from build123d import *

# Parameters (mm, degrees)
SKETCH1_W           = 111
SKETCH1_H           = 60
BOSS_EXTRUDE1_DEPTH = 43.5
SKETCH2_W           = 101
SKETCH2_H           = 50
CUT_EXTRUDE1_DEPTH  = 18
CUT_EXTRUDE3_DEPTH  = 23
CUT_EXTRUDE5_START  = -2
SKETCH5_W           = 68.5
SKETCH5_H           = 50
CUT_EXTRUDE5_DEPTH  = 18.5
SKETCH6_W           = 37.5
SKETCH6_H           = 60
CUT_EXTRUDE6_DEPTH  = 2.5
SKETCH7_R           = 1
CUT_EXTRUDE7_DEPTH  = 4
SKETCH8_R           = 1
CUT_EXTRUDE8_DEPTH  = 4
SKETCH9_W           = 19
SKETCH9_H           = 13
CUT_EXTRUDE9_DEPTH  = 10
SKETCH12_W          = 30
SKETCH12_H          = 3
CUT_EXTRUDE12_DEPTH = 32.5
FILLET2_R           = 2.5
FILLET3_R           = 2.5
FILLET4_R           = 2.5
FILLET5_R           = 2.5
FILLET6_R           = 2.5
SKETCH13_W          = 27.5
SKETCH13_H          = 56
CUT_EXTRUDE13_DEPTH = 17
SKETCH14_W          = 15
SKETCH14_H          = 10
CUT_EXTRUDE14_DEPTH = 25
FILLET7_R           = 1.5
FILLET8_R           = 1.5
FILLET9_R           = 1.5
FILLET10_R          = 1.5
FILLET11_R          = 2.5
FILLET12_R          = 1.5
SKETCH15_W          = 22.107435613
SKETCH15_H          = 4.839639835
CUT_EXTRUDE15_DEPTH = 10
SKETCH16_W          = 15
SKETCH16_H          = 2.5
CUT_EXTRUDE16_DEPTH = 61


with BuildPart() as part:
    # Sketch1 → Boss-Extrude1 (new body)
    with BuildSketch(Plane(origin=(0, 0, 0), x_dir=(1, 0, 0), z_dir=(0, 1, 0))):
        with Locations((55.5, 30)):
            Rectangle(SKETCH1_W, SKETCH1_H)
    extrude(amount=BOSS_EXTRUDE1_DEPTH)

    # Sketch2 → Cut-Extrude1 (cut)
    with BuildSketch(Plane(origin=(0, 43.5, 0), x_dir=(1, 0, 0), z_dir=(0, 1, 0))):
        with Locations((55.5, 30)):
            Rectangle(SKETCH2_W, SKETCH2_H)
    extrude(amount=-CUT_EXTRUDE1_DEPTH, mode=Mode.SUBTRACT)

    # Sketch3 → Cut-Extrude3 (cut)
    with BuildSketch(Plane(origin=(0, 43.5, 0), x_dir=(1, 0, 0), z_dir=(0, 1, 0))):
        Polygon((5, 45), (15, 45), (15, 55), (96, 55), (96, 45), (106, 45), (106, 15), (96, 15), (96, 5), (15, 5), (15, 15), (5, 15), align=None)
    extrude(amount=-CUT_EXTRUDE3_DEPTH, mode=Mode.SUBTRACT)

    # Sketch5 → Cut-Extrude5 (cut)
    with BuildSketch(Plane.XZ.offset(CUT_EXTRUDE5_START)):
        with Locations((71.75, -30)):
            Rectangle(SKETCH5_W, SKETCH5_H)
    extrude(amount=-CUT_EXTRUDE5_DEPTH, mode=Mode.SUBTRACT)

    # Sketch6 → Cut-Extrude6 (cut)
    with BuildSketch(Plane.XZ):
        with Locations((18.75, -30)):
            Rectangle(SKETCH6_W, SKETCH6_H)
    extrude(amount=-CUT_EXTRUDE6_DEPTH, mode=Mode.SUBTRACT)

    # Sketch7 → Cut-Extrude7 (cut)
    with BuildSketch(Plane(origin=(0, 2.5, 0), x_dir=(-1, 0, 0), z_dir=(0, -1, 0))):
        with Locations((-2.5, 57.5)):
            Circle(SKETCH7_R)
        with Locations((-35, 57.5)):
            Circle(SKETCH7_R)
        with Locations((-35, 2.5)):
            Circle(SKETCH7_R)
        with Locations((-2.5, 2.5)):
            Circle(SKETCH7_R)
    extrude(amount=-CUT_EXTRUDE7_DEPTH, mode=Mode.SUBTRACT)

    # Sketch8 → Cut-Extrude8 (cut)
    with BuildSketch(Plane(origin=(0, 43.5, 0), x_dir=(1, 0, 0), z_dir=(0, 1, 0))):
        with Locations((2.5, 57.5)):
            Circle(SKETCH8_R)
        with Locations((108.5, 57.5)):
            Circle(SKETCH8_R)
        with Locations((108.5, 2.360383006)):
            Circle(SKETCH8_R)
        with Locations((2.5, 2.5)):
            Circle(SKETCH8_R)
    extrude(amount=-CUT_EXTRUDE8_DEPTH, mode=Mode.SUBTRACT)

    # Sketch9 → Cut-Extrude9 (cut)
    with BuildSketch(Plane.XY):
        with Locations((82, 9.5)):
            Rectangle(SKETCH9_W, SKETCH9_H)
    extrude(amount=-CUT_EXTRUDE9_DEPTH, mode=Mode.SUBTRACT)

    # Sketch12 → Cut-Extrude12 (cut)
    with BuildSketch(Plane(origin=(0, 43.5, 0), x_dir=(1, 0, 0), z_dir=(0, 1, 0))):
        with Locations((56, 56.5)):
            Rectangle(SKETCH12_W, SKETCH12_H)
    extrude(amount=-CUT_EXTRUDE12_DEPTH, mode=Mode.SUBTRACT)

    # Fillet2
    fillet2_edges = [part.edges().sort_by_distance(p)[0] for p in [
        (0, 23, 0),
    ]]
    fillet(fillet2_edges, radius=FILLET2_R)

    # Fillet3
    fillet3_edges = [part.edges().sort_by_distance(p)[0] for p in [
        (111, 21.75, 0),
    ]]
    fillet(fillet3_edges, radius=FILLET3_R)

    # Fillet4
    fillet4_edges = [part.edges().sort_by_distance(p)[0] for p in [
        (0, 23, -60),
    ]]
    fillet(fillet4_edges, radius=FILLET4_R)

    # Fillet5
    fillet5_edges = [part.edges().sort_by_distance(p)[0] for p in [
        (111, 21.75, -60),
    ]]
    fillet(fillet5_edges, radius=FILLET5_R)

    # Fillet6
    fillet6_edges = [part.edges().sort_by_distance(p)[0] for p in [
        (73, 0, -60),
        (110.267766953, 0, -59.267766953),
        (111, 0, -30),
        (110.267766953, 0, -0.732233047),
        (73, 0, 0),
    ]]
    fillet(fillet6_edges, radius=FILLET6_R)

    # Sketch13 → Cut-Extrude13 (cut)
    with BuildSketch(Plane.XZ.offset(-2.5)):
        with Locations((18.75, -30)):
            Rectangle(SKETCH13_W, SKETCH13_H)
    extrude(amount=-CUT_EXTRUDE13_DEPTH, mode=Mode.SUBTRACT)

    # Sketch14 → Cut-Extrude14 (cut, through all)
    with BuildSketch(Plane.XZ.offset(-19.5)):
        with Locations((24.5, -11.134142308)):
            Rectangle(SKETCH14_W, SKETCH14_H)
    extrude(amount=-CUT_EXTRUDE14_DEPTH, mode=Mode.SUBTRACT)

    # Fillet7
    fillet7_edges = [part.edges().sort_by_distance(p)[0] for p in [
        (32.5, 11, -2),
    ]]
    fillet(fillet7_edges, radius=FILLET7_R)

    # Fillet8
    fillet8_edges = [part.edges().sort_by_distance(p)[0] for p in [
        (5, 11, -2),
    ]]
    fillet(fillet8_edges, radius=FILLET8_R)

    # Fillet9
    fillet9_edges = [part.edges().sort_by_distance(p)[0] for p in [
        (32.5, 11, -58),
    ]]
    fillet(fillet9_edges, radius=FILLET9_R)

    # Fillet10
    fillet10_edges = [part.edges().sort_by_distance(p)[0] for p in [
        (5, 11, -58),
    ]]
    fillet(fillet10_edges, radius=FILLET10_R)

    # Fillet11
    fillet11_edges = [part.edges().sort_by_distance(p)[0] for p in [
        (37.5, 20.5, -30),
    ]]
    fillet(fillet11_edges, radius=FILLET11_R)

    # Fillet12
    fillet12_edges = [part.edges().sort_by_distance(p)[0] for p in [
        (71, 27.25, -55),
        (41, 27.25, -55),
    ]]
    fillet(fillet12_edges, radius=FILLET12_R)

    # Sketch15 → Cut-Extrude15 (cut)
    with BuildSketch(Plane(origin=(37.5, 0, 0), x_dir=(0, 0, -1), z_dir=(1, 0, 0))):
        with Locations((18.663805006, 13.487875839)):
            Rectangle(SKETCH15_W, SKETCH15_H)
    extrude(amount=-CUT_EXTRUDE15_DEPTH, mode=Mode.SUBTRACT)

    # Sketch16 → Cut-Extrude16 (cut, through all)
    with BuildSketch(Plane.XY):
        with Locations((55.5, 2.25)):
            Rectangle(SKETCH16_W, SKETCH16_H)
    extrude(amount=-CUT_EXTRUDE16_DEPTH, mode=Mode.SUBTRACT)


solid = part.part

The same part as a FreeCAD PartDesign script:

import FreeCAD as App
import Part
import Sketcher


def edges_at(feature, points):
    """Names of the edges that pass closest to the given points."""
    edges = feature.Shape.Edges
    near = lambda p: min(range(len(edges)), key=lambda i: edges[i].distToShape(Part.Vertex(*p))[0])
    return sorted({f"Edge{near(p) + 1}" for p in points})

doc = App.newDocument("Part")
body = doc.addObject("PartDesign::Body", "Body")

sketch1 = body.newObject("Sketcher::SketchObject", "Sketch")
sketch1.AttachmentSupport = (doc.getObject("XZ_Plane"), [""])
sketch1.MapMode = "FlatFace"
sketch1.addGeometry([
    Part.LineSegment(App.Vector(0, -60, 0), App.Vector(0, 0, 0)),
    Part.LineSegment(App.Vector(0, 0, 0), App.Vector(111, 0, 0)),
    Part.LineSegment(App.Vector(111, 0, 0), App.Vector(111, -60, 0)),
    Part.LineSegment(App.Vector(111, -60, 0), App.Vector(0, -60, 0)),
], False)
sketch1.addConstraint([
    Sketcher.Constraint("Coincident", 0, 2, 1, 1),
    Sketcher.Constraint("Coincident", 1, 2, 2, 1),
    Sketcher.Constraint("Coincident", 2, 2, 3, 1),
    Sketcher.Constraint("Coincident", 3, 2, 0, 1),
    Sketcher.Constraint("Vertical", 0),
    Sketcher.Constraint("Horizontal", 1),
    Sketcher.Constraint("Vertical", 2),
    Sketcher.Constraint("Horizontal", 3),
    Sketcher.Constraint("Coincident", 0, 2, -1, 1),
    Sketcher.Constraint("DistanceX", 1, 1, 1, 2, 111.0),
    Sketcher.Constraint("DistanceY", 0, 1, 0, 2, 60.0),
])
pad1 = body.newObject("PartDesign::Pad", "Pad")
pad1.Profile = sketch1
pad1.Length = 43.5
pad1.Reversed = True

sketch2 = body.newObject("Sketcher::SketchObject", "Sketch001")
sketch2.AttachmentSupport = (doc.getObject("XZ_Plane"), [""])
sketch2.MapMode = "FlatFace"
sketch2.AttachmentOffset = App.Placement(App.Vector(0, 0, -43.5), App.Rotation())
sketch2.addGeometry([
    Part.LineSegment(App.Vector(5, -55, 0), App.Vector(5, -5, 0)),
    Part.LineSegment(App.Vector(5, -5, 0), App.Vector(106, -5, 0)),
    Part.LineSegment(App.Vector(106, -5, 0), App.Vector(106, -55, 0)),
    Part.LineSegment(App.Vector(106, -55, 0), App.Vector(5, -55, 0)),
], False)
sketch2.addConstraint([
    Sketcher.Constraint("Coincident", 0, 2, 1, 1),
    Sketcher.Constraint("Coincident", 1, 2, 2, 1),
    Sketcher.Constraint("Coincident", 2, 2, 3, 1),
    Sketcher.Constraint("Coincident", 3, 2, 0, 1),
    Sketcher.Constraint("Vertical", 0),
    Sketcher.Constraint("Horizontal", 1),
    Sketcher.Constraint("Vertical", 2),
    Sketcher.Constraint("Horizontal", 3),
    Sketcher.Constraint("DistanceX", 1, 1, 1, 2, 101.0),
    Sketcher.Constraint("DistanceY", 0, 1, 0, 2, 50.0),
    Sketcher.Constraint("DistanceX", -1, 1, 0, 2, 5.0),
    Sketcher.Constraint("DistanceY", 0, 2, -1, 1, 5.0),
])
pocket1 = body.newObject("PartDesign::Pocket", "Pocket")
pocket1.Profile = sketch2
pocket1.Length = 18
pocket1.Reversed = True

sketch3 = body.newObject("Sketcher::SketchObject", "Sketch002")
sketch3.AttachmentSupport = (doc.getObject("XZ_Plane"), [""])
sketch3.MapMode = "FlatFace"
sketch3.AttachmentOffset = App.Placement(App.Vector(0, 0, -43.5), App.Rotation())
sketch3.addGeometry([
    Part.LineSegment(App.Vector(15, -45, 0), App.Vector(5, -45, 0)),
    Part.LineSegment(App.Vector(5, -45, 0), App.Vector(5, -15, 0)),
    Part.LineSegment(App.Vector(5, -15, 0), App.Vector(15, -15, 0)),
    Part.LineSegment(App.Vector(15, -15, 0), App.Vector(15, -5, 0)),
    Part.LineSegment(App.Vector(15, -5, 0), App.Vector(96, -5, 0)),
    Part.LineSegment(App.Vector(96, -5, 0), App.Vector(96, -15, 0)),
    Part.LineSegment(App.Vector(96, -15, 0), App.Vector(106, -15, 0)),
    Part.LineSegment(App.Vector(106, -15, 0), App.Vector(106, -45, 0)),
    Part.LineSegment(App.Vector(106, -45, 0), App.Vector(96, -45, 0)),
    Part.LineSegment(App.Vector(96, -45, 0), App.Vector(96, -55, 0)),
    Part.LineSegment(App.Vector(96, -55, 0), App.Vector(15, -55, 0)),
    Part.LineSegment(App.Vector(15, -55, 0), App.Vector(15, -45, 0)),
], False)
sketch3.addConstraint([
    Sketcher.Constraint("Coincident", 0, 2, 1, 1),
    Sketcher.Constraint("Coincident", 1, 2, 2, 1),
    Sketcher.Constraint("Coincident", 2, 2, 3, 1),
    Sketcher.Constraint("Coincident", 3, 2, 4, 1),
    Sketcher.Constraint("Coincident", 4, 2, 5, 1),
    Sketcher.Constraint("Coincident", 5, 2, 6, 1),
    Sketcher.Constraint("Coincident", 6, 2, 7, 1),
    Sketcher.Constraint("Coincident", 7, 2, 8, 1),
    Sketcher.Constraint("Coincident", 8, 2, 9, 1),
    Sketcher.Constraint("Coincident", 9, 2, 10, 1),
    Sketcher.Constraint("Coincident", 10, 2, 11, 1),
    Sketcher.Constraint("Coincident", 11, 2, 0, 1),
    Sketcher.Constraint("Horizontal", 0),
    Sketcher.Constraint("Vertical", 1),
    Sketcher.Constraint("Horizontal", 2),
    Sketcher.Constraint("Vertical", 3),
    Sketcher.Constraint("Horizontal", 4),
    Sketcher.Constraint("Vertical", 5),
    Sketcher.Constraint("Horizontal", 6),
    Sketcher.Constraint("Vertical", 7),
    Sketcher.Constraint("Horizontal", 8),
    Sketcher.Constraint("Vertical", 9),
    Sketcher.Constraint("Horizontal", 10),
    Sketcher.Constraint("Vertical", 11),
    Sketcher.Constraint("Horizontal", 2, 2, 5, 2),
    Sketcher.Constraint("Horizontal", 0, 2, 7, 2),
    Sketcher.Constraint("Vertical", 5, 2, 8, 2),
    Sketcher.Constraint("Vertical", 3, 2, 10, 2),
    Sketcher.Constraint("Equal", 2, 6),
    Sketcher.Constraint("Equal", 8, 3),
    Sketcher.Constraint("Equal", 5, 9),
    Sketcher.Constraint("DistanceX", 0, 2, 0, 1, 10.0),
    Sketcher.Constraint("DistanceX", 4, 1, 4, 2, 81.0),
    Sketcher.Constraint("DistanceY", 1, 1, 1, 2, 30.0),
    Sketcher.Constraint("DistanceX", -1, 1, 0, 2, 5.0),
    Sketcher.Constraint("DistanceY", 0, 2, -1, 1, 45.0),
])
pocket2 = body.newObject("PartDesign::Pocket", "Pocket001")
pocket2.Profile = sketch3
pocket2.Length = 23
pocket2.Reversed = True

sketch4 = body.newObject("Sketcher::SketchObject", "Sketch003")
sketch4.AttachmentSupport = (doc.getObject("XZ_Plane"), [""])
sketch4.MapMode = "FlatFace"
sketch4.AttachmentOffset = App.Placement(App.Vector(0, 0, -2), App.Rotation())
sketch4.addGeometry([
    Part.LineSegment(App.Vector(38, -5, 0), App.Vector(38, -55, 0)),
    Part.LineSegment(App.Vector(38, -55, 0), App.Vector(106, -55, 0)),
    Part.LineSegment(App.Vector(106, -55, 0), App.Vector(106, -5, 0)),
    Part.LineSegment(App.Vector(106, -5, 0), App.Vector(38, -5, 0)),
], False)
sketch4.addConstraint([
    Sketcher.Constraint("Coincident", 0, 2, 1, 1),
    Sketcher.Constraint("Coincident", 1, 2, 2, 1),
    Sketcher.Constraint("Coincident", 2, 2, 3, 1),
    Sketcher.Constraint("Coincident", 3, 2, 0, 1),
    Sketcher.Constraint("Vertical", 0),
    Sketcher.Constraint("Horizontal", 1),
    Sketcher.Constraint("Vertical", 2),
    Sketcher.Constraint("Horizontal", 3),
    Sketcher.Constraint("DistanceY", 0, 2, 0, 1, 50.0),
    Sketcher.Constraint("DistanceX", 1, 1, 1, 2, 68.5),
    Sketcher.Constraint("DistanceY", 0, 2, -1, 1, 55.0),
    Sketcher.Constraint("DistanceX", -1, 1, 1, 2, 106.0),
])
pocket3 = body.newObject("PartDesign::Pocket", "Pocket002")
pocket3.Profile = sketch4
pocket3.Length = 18.5

sketch5 = body.newObject("Sketcher::SketchObject", "Sketch004")
sketch5.AttachmentSupport = (doc.getObject("XZ_Plane"), [""])
sketch5.MapMode = "FlatFace"
sketch5.addGeometry([
    Part.LineSegment(App.Vector(0, 0, 0), App.Vector(0, -60, 0)),
    Part.LineSegment(App.Vector(0, -60, 0), App.Vector(38, -60, 0)),
    Part.LineSegment(App.Vector(38, -60, 0), App.Vector(38, 0, 0)),
    Part.LineSegment(App.Vector(38, 0, 0), App.Vector(0, 0, 0)),
], False)
sketch5.addConstraint([
    Sketcher.Constraint("Coincident", 0, 2, 1, 1),
    Sketcher.Constraint("Coincident", 1, 2, 2, 1),
    Sketcher.Constraint("Coincident", 2, 2, 3, 1),
    Sketcher.Constraint("Coincident", 3, 2, 0, 1),
    Sketcher.Constraint("Vertical", 0),
    Sketcher.Constraint("Horizontal", 1),
    Sketcher.Constraint("Vertical", 2),
    Sketcher.Constraint("Horizontal", 3),
    Sketcher.Constraint("Coincident", 3, 2, -1, 1),
    Sketcher.Constraint("DistanceY", 0, 2, 0, 1, 60.0),
    Sketcher.Constraint("DistanceX", 1, 1, 1, 2, 37.5),
])
pocket4 = body.newObject("PartDesign::Pocket", "Pocket003")
pocket4.Profile = sketch5
pocket4.Length = 2.5

sketch6 = body.newObject("Sketcher::SketchObject", "Sketch005")
sketch6.AttachmentSupport = (doc.getObject("XZ_Plane"), [""])
sketch6.MapMode = "FlatFace"
sketch6.AttachmentOffset = App.Placement(App.Vector(0, 0, -2.5), App.Rotation())
sketch6.addGeometry([
    Part.Circle(App.Vector(2.5, -57.5, 0), App.Vector(0, 0, 1), 1),
    Part.Circle(App.Vector(35, -57.5, 0), App.Vector(0, 0, 1), 1),
    Part.Circle(App.Vector(35, -2.5, 0), App.Vector(0, 0, 1), 1),
    Part.Circle(App.Vector(2.5, -2.5, 0), App.Vector(0, 0, 1), 1),
], False)
sketch6.addConstraint([
    Sketcher.Constraint("Equal", 0, 1),
    Sketcher.Constraint("Equal", 1, 2),
    Sketcher.Constraint("Equal", 2, 3),
    Sketcher.Constraint("Horizontal", 0, 3, 1, 3),
    Sketcher.Constraint("Horizontal", 2, 3, 3, 3),
    Sketcher.Constraint("Vertical", 1, 3, 2, 3),
    Sketcher.Constraint("Vertical", 0, 3, 3, 3),
    Sketcher.Constraint("Diameter", 0, 2.0),
    Sketcher.Constraint("DistanceX", -1, 1, 1, 3, 35.0),
    Sketcher.Constraint("DistanceY", 1, 3, 2, 3, 55.0),
    Sketcher.Constraint("DistanceX", -1, 1, 0, 3, 2.5),
    Sketcher.Constraint("DistanceY", 0, 3, -1, 1, 57.5),
])
pocket5 = body.newObject("PartDesign::Pocket", "Pocket004")
pocket5.Profile = sketch6
pocket5.Length = 4

sketch7 = body.newObject("Sketcher::SketchObject", "Sketch006")
sketch7.AttachmentSupport = (doc.getObject("XZ_Plane"), [""])
sketch7.MapMode = "FlatFace"
sketch7.AttachmentOffset = App.Placement(App.Vector(0, 0, -43.5), App.Rotation())
sketch7.addGeometry([
    Part.Circle(App.Vector(2.5, -57.5, 0), App.Vector(0, 0, 1), 1),
    Part.Circle(App.Vector(108.5, -57.5, 0), App.Vector(0, 0, 1), 1),
    Part.Circle(App.Vector(108.5, -2.4, 0), App.Vector(0, 0, 1), 1),
    Part.Circle(App.Vector(2.5, -2.5, 0), App.Vector(0, 0, 1), 1),
], False)
sketch7.addConstraint([
    Sketcher.Constraint("Equal", 0, 1),
    Sketcher.Constraint("Equal", 1, 2),
    Sketcher.Constraint("Equal", 2, 3),
    Sketcher.Constraint("Horizontal", 0, 3, 1, 3),
    Sketcher.Constraint("Vertical", 1, 3, 2, 3),
    Sketcher.Constraint("Vertical", 0, 3, 3, 3),
    Sketcher.Constraint("Diameter", 0, 2.0),
    Sketcher.Constraint("DistanceX", 0, 3, 1, 3, 106.0),
    Sketcher.Constraint("DistanceY", 0, 3, 3, 3, 55.0),
    Sketcher.Constraint("DistanceX", -1, 1, 0, 3, 2.5),
    Sketcher.Constraint("DistanceY", 0, 3, -1, 1, 57.5),
    Sketcher.Constraint("DistanceY", 2, 3, -1, 1, 2.360383),
])
pocket6 = body.newObject("PartDesign::Pocket", "Pocket005")
pocket6.Profile = sketch7
pocket6.Length = 4
pocket6.Reversed = True

sketch8 = body.newObject("Sketcher::SketchObject", "Sketch007")
sketch8.AttachmentSupport = (doc.getObject("XY_Plane"), [""])
sketch8.MapMode = "FlatFace"
sketch8.addGeometry([
    Part.LineSegment(App.Vector(72, 16, 0), App.Vector(72, 3, 0)),
    Part.LineSegment(App.Vector(72, 3, 0), App.Vector(92, 3, 0)),
    Part.LineSegment(App.Vector(92, 3, 0), App.Vector(92, 16, 0)),
    Part.LineSegment(App.Vector(92, 16, 0), App.Vector(72, 16, 0)),
], False)
sketch8.addConstraint([
    Sketcher.Constraint("Coincident", 0, 2, 1, 1),
    Sketcher.Constraint("Coincident", 1, 2, 2, 1),
    Sketcher.Constraint("Coincident", 2, 2, 3, 1),
    Sketcher.Constraint("Coincident", 3, 2, 0, 1),
    Sketcher.Constraint("Vertical", 0),
    Sketcher.Constraint("Horizontal", 1),
    Sketcher.Constraint("Vertical", 2),
    Sketcher.Constraint("Horizontal", 3),
    Sketcher.Constraint("DistanceX", 1, 1, 1, 2, 19.0),
    Sketcher.Constraint("DistanceY", 0, 2, 0, 1, 13.0),
    Sketcher.Constraint("DistanceY", -1, 1, 0, 2, 3.0),
    Sketcher.Constraint("DistanceX", -1, 1, 0, 2, 72.5),
])
pocket7 = body.newObject("PartDesign::Pocket", "Pocket006")
pocket7.Profile = sketch8
pocket7.Length = 10

sketch9 = body.newObject("Sketcher::SketchObject", "Sketch008")
sketch9.AttachmentSupport = (doc.getObject("XZ_Plane"), [""])
sketch9.MapMode = "FlatFace"
sketch9.AttachmentOffset = App.Placement(App.Vector(0, 0, -43.5), App.Rotation())
sketch9.addGeometry([
    Part.LineSegment(App.Vector(41, -58, 0), App.Vector(41, -55, 0)),
    Part.LineSegment(App.Vector(41, -55, 0), App.Vector(71, -55, 0)),
    Part.LineSegment(App.Vector(71, -55, 0), App.Vector(71, -58, 0)),
    Part.LineSegment(App.Vector(71, -58, 0), App.Vector(41, -58, 0)),
], False)
sketch9.addConstraint([
    Sketcher.Constraint("Coincident", 0, 2, 1, 1),
    Sketcher.Constraint("Coincident", 1, 2, 2, 1),
    Sketcher.Constraint("Coincident", 2, 2, 3, 1),
    Sketcher.Constraint("Coincident", 3, 2, 0, 1),
    Sketcher.Constraint("Vertical", 0),
    Sketcher.Constraint("Horizontal", 1),
    Sketcher.Constraint("Vertical", 2),
    Sketcher.Constraint("Horizontal", 3),
    Sketcher.Constraint("DistanceX", 1, 1, 1, 2, 30.0),
    Sketcher.Constraint("DistanceY", 0, 1, 0, 2, 3.0),
    Sketcher.Constraint("DistanceX", -1, 1, 0, 2, 41.0),
    Sketcher.Constraint("DistanceY", 0, 2, -1, 1, 55.0),
])
pocket8 = body.newObject("PartDesign::Pocket", "Pocket007")
pocket8.Profile = sketch9
pocket8.Length = 32.5
pocket8.Reversed = True
doc.recompute()

fillet = body.newObject("PartDesign::Fillet", "Fillet")
fillet.Base = (pocket8, edges_at(pocket8, [(0, 23, 0)]))
fillet.Radius = 2.5
doc.recompute()

fillet2 = body.newObject("PartDesign::Fillet", "Fillet001")
fillet2.Base = (fillet, edges_at(fillet, [(111, 21.75, 0)]))
fillet2.Radius = 2.5
doc.recompute()

fillet3 = body.newObject("PartDesign::Fillet", "Fillet002")
fillet3.Base = (fillet2, edges_at(fillet2, [(0, 23, -60)]))
fillet3.Radius = 2.5
doc.recompute()

fillet4 = body.newObject("PartDesign::Fillet", "Fillet003")
fillet4.Base = (fillet3, edges_at(fillet3, [(111, 21.75, -60)]))
fillet4.Radius = 2.5
doc.recompute()

fillet5 = body.newObject("PartDesign::Fillet", "Fillet004")
fillet5.Base = (fillet4, edges_at(fillet4, [
    (73, 0, -60),
    (110.268, 0, -59.268),
    (111, 0, -30),
    (110.268, 0, -0.732),
    (73, 0, 0),
]))
fillet5.Radius = 2.5

sketch10 = body.newObject("Sketcher::SketchObject", "Sketch009")
sketch10.AttachmentSupport = (doc.getObject("XZ_Plane"), [""])
sketch10.MapMode = "FlatFace"
sketch10.AttachmentOffset = App.Placement(App.Vector(0, 0, -2.5), App.Rotation())
sketch10.addGeometry([
    Part.LineSegment(App.Vector(5, -2, 0), App.Vector(5, -58, 0)),
    Part.LineSegment(App.Vector(5, -58, 0), App.Vector(32, -58, 0)),
    Part.LineSegment(App.Vector(32, -58, 0), App.Vector(32, -2, 0)),
    Part.LineSegment(App.Vector(32, -2, 0), App.Vector(5, -2, 0)),
], False)
sketch10.addConstraint([
    Sketcher.Constraint("Coincident", 0, 2, 1, 1),
    Sketcher.Constraint("Coincident", 1, 2, 2, 1),
    Sketcher.Constraint("Coincident", 2, 2, 3, 1),
    Sketcher.Constraint("Coincident", 3, 2, 0, 1),
    Sketcher.Constraint("Vertical", 0),
    Sketcher.Constraint("Horizontal", 1),
    Sketcher.Constraint("Vertical", 2),
    Sketcher.Constraint("Horizontal", 3),
    Sketcher.Constraint("DistanceY", 0, 2, 0, 1, 56.0),
    Sketcher.Constraint("DistanceX", 1, 1, 1, 2, 27.5),
    Sketcher.Constraint("DistanceX", -1, 1, 0, 2, 5.0),
    Sketcher.Constraint("DistanceY", 0, 2, -1, 1, 58.0),
])
pocket9 = body.newObject("PartDesign::Pocket", "Pocket008")
pocket9.Profile = sketch10
pocket9.Length = 17

sketch11 = body.newObject("Sketcher::SketchObject", "Sketch010")
sketch11.AttachmentSupport = (doc.getObject("XZ_Plane"), [""])
sketch11.MapMode = "FlatFace"
sketch11.AttachmentOffset = App.Placement(App.Vector(0, 0, -19.5), App.Rotation())
sketch11.addGeometry([
    Part.LineSegment(App.Vector(17, -6, 0), App.Vector(17, -16, 0)),
    Part.LineSegment(App.Vector(17, -16, 0), App.Vector(32, -16, 0)),
    Part.LineSegment(App.Vector(32, -16, 0), App.Vector(32, -6, 0)),
    Part.LineSegment(App.Vector(32, -6, 0), App.Vector(17, -6, 0)),
], False)
sketch11.addConstraint([
    Sketcher.Constraint("Coincident", 0, 2, 1, 1),
    Sketcher.Constraint("Coincident", 1, 2, 2, 1),
    Sketcher.Constraint("Coincident", 2, 2, 3, 1),
    Sketcher.Constraint("Coincident", 3, 2, 0, 1),
    Sketcher.Constraint("Vertical", 0),
    Sketcher.Constraint("Horizontal", 1),
    Sketcher.Constraint("Vertical", 2),
    Sketcher.Constraint("Horizontal", 3),
    Sketcher.Constraint("DistanceX", 1, 1, 1, 2, 15.0),
    Sketcher.Constraint("DistanceY", 0, 2, 0, 1, 10.0),
    Sketcher.Constraint("DistanceX", -1, 1, 0, 2, 17.0),
    Sketcher.Constraint("DistanceY", 0, 2, -1, 1, 16.134142),
])
pocket10 = body.newObject("PartDesign::Pocket", "Pocket009")
pocket10.Profile = sketch11
pocket10.Type = "ThroughAll"
doc.recompute()

fillet6 = body.newObject("PartDesign::Fillet", "Fillet005")
fillet6.Base = (pocket10, edges_at(pocket10, [(32.5, 11, -2)]))
fillet6.Radius = 1.5
doc.recompute()

fillet7 = body.newObject("PartDesign::Fillet", "Fillet006")
fillet7.Base = (fillet6, edges_at(fillet6, [(5, 11, -2)]))
fillet7.Radius = 1.5
doc.recompute()

fillet8 = body.newObject("PartDesign::Fillet", "Fillet007")
fillet8.Base = (fillet7, edges_at(fillet7, [(32.5, 11, -58)]))
fillet8.Radius = 1.5
doc.recompute()

fillet9 = body.newObject("PartDesign::Fillet", "Fillet008")
fillet9.Base = (fillet8, edges_at(fillet8, [(5, 11, -58)]))
fillet9.Radius = 1.5
doc.recompute()

fillet10 = body.newObject("PartDesign::Fillet", "Fillet009")
fillet10.Base = (fillet9, edges_at(fillet9, [(37.5, 20.5, -30)]))
fillet10.Radius = 2.5
doc.recompute()

fillet11 = body.newObject("PartDesign::Fillet", "Fillet010")
fillet11.Base = (fillet10, edges_at(fillet10, [(71, 27.25, -55), (41, 27.25, -55)]))
fillet11.Radius = 1.5

sketch12 = body.newObject("Sketcher::SketchObject", "Sketch011")
sketch12.AttachmentSupport = (doc.getObject("YZ_Plane"), [""])
sketch12.MapMode = "FlatFace"
sketch12.AttachmentOffset = App.Placement(App.Vector(0, 0, 37.5), App.Rotation())
sketch12.addGeometry([
    Part.LineSegment(App.Vector(15.9, -7.6, 0), App.Vector(11.1, -7.6, 0)),
    Part.LineSegment(App.Vector(11.1, -7.6, 0), App.Vector(11.1, -29.7, 0)),
    Part.LineSegment(App.Vector(11.1, -29.7, 0), App.Vector(15.9, -29.7, 0)),
    Part.LineSegment(App.Vector(15.9, -29.7, 0), App.Vector(15.9, -7.6, 0)),
], False)
sketch12.addConstraint([
    Sketcher.Constraint("Coincident", 0, 2, 1, 1),
    Sketcher.Constraint("Coincident", 1, 2, 2, 1),
    Sketcher.Constraint("Coincident", 2, 2, 3, 1),
    Sketcher.Constraint("Coincident", 3, 2, 0, 1),
    Sketcher.Constraint("Horizontal", 0),
    Sketcher.Constraint("Vertical", 1),
    Sketcher.Constraint("Horizontal", 2),
    Sketcher.Constraint("Vertical", 3),
    Sketcher.Constraint("DistanceX", 0, 2, 0, 1, 4.83964),
    Sketcher.Constraint("DistanceY", 1, 2, 1, 1, 22.107436),
    Sketcher.Constraint("DistanceX", -1, 1, 0, 2, 11.068056),
    Sketcher.Constraint("DistanceY", 0, 2, -1, 1, 7.610087),
])
pocket11 = body.newObject("PartDesign::Pocket", "Pocket010")
pocket11.Profile = sketch12
pocket11.Length = 10

sketch13 = body.newObject("Sketcher::SketchObject", "Sketch012")
sketch13.AttachmentSupport = (doc.getObject("XY_Plane"), [""])
sketch13.MapMode = "FlatFace"
sketch13.addGeometry([
    Part.LineSegment(App.Vector(48, 3.5, 0), App.Vector(48, 1, 0)),
    Part.LineSegment(App.Vector(48, 1, 0), App.Vector(63, 1, 0)),
    Part.LineSegment(App.Vector(63, 1, 0), App.Vector(63, 3.5, 0)),
    Part.LineSegment(App.Vector(63, 3.5, 0), App.Vector(48, 3.5, 0)),
], False)
sketch13.addConstraint([
    Sketcher.Constraint("Coincident", 0, 2, 1, 1),
    Sketcher.Constraint("Coincident", 1, 2, 2, 1),
    Sketcher.Constraint("Coincident", 2, 2, 3, 1),
    Sketcher.Constraint("Coincident", 3, 2, 0, 1),
    Sketcher.Constraint("Vertical", 0),
    Sketcher.Constraint("Horizontal", 1),
    Sketcher.Constraint("Vertical", 2),
    Sketcher.Constraint("Horizontal", 3),
    Sketcher.Constraint("DistanceX", 1, 1, 1, 2, 15.0),
    Sketcher.Constraint("DistanceY", 0, 2, 0, 1, 2.5),
    Sketcher.Constraint("DistanceX", -1, 1, 0, 2, 48.0),
    Sketcher.Constraint("DistanceY", -1, 1, 0, 2, 1.0),
])
pocket12 = body.newObject("PartDesign::Pocket", "Pocket011")
pocket12.Profile = sketch13
pocket12.Type = "ThroughAll"

doc.recompute()
